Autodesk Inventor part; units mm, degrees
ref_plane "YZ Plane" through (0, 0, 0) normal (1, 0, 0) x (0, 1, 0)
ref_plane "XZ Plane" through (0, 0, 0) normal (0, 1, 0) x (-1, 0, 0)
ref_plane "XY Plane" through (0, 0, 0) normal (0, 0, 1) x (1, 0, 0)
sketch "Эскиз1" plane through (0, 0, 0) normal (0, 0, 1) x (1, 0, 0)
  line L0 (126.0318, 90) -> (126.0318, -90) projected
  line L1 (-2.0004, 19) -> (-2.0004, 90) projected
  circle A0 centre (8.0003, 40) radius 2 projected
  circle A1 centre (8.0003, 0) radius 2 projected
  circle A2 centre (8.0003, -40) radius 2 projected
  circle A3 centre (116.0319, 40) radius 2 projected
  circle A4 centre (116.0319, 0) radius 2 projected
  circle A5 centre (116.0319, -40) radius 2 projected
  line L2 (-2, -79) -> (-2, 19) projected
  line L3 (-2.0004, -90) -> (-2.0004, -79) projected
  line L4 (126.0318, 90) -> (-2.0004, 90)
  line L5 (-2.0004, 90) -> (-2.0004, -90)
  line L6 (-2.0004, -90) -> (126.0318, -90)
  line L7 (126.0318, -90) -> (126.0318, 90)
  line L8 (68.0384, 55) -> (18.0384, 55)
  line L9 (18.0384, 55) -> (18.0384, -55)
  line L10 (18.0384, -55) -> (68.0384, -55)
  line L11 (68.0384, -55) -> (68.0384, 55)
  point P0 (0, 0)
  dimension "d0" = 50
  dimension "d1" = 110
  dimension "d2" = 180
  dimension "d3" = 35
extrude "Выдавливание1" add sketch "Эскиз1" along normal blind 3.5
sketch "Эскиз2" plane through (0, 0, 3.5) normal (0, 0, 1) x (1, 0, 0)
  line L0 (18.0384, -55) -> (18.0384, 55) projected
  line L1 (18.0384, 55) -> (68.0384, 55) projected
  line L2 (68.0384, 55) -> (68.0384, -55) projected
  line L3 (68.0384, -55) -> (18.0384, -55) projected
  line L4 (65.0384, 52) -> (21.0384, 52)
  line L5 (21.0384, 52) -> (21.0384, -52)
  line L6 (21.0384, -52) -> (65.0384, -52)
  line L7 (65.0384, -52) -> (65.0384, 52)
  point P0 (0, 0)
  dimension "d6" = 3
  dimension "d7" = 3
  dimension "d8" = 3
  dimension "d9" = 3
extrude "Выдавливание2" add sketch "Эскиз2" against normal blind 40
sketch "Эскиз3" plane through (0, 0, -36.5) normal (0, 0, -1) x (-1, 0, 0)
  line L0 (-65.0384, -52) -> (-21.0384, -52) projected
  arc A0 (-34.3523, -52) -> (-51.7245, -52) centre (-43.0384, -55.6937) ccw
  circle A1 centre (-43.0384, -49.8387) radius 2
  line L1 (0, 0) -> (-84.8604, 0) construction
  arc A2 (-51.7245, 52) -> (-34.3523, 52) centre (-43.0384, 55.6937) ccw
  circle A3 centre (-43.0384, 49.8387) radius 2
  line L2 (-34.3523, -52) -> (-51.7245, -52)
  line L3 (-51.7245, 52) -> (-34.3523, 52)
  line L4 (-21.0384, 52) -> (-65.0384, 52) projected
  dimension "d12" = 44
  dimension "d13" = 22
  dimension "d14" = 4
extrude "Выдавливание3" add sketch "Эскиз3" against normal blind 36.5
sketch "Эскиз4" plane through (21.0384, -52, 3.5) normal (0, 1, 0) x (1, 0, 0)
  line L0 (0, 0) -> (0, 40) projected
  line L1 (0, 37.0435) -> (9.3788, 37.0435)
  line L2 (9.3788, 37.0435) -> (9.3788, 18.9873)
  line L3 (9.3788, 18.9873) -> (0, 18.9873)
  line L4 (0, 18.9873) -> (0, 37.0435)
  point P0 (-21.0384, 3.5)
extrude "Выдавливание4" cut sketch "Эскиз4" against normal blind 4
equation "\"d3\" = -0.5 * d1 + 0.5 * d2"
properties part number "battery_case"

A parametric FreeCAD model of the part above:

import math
import FreeCAD as App
import Part
import Sketcher

doc = App.newDocument("Part")
body = doc.addObject("PartDesign::Body", "Body")

# Sketch on XY plane
sketch1 = body.newObject("Sketcher::SketchObject", "Sketch")
sketch1.AttachmentSupport = (doc.getObject("XY_Plane"), [""])
sketch1.MapMode = "FlatFace"
sketch1.addGeometry([
    Part.LineSegment(App.Vector(126, -90, 0), App.Vector(126, 90, 0)),  # 0
    Part.LineSegment(App.Vector(126, 90, 0), App.Vector(-2, 90, 0)),  # 1
    Part.LineSegment(App.Vector(-2, 90, 0), App.Vector(-2, 19, 0)),  # 2
    Part.LineSegment(App.Vector(-2, 19, 0), App.Vector(-2, -79, 0)),  # 3
    Part.LineSegment(App.Vector(-2, -79, 0), App.Vector(-2, -90, 0)),  # 4
    Part.LineSegment(App.Vector(-2, -90, 0), App.Vector(126, -90, 0)),  # 5
    Part.Circle(App.Vector(8, -40, 0), App.Vector(0, 0, 1), 2),  # 6
    Part.Circle(App.Vector(116, -40, 0), App.Vector(0, 0, 1), 2),  # 7
    Part.Circle(App.Vector(8, 0, 0), App.Vector(0, 0, 1), 2),  # 8
    Part.Circle(App.Vector(8, 40, 0), App.Vector(0, 0, 1), 2),  # 9
    Part.LineSegment(App.Vector(18, 55, 0), App.Vector(68, 55, 0)),  # 10
    Part.LineSegment(App.Vector(68, 55, 0), App.Vector(68, -55, 0)),  # 11
    Part.LineSegment(App.Vector(68, -55, 0), App.Vector(18, -55, 0)),  # 12
    Part.LineSegment(App.Vector(18, -55, 0), App.Vector(18, 55, 0)),  # 13
    Part.Circle(App.Vector(116, 0, 0), App.Vector(0, 0, 1), 2),  # 14
    Part.Circle(App.Vector(116, 40, 0), App.Vector(0, 0, 1), 2),  # 15
], False)
sketch1.addConstraint([
    Sketcher.Constraint("Coincident", 0, 2, 1, 1),
    Sketcher.Constraint("Coincident", 1, 2, 2, 1),
    Sketcher.Constraint("Coincident", 2, 2, 3, 1),
    Sketcher.Constraint("Coincident", 3, 2, 4, 1),
    Sketcher.Constraint("Coincident", 4, 2, 5, 1),
    Sketcher.Constraint("Coincident", 5, 2, 0, 1),
    Sketcher.Constraint("Coincident", 10, 2, 11, 1),
    Sketcher.Constraint("Coincident", 11, 2, 12, 1),
    Sketcher.Constraint("Coincident", 12, 2, 13, 1),
    Sketcher.Constraint("Coincident", 13, 2, 10, 1),
    Sketcher.Constraint("Vertical", 0),
    Sketcher.Constraint("Horizontal", 1),
    Sketcher.Constraint("Vertical", 2),
    Sketcher.Constraint("Horizontal", 5),
    Sketcher.Constraint("Horizontal", 10),
    Sketcher.Constraint("Vertical", 11),
    Sketcher.Constraint("Horizontal", 12),
    Sketcher.Constraint("Vertical", 13),
    Sketcher.Constraint("Equal", 6, 7),
    Sketcher.Constraint("Equal", 7, 8),
    Sketcher.Constraint("Equal", 8, 9),
    Sketcher.Constraint("Equal", 9, 14),
    Sketcher.Constraint("Equal", 14, 15),
    Sketcher.Constraint("Symmetric", 6, 3, 9, 3, -1),
    Sketcher.Constraint("Symmetric", 7, 3, 15, 3, -1),
    Sketcher.Constraint("Symmetric", 1, 2, 4, 2, -1),
    Sketcher.Constraint("PointOnObject", 8, 3, -1),
    Sketcher.Constraint("PointOnObject", 14, 3, -1),
    Sketcher.Constraint("Parallel", 3, 4),
    Sketcher.Constraint("Horizontal", 6, 3, 7, 3),
    Sketcher.Constraint("Vertical", 6, 3, 8, 3),
    Sketcher.Constraint("Vertical", 7, 3, 14, 3),
    Sketcher.Constraint("DistanceX", 10, 1, 10, 2, 50.0),
    Sketcher.Constraint("DistanceY", 0, 1, 0, 2, 180.0),
    Sketcher.Constraint("DistanceY", 11, 2, 11, 1, 110.0),
    Sketcher.Constraint("Diameter", 6, 4.0),
    Sketcher.Constraint("DistanceY", 15, 3, 0, 2, 50.0),
    Sketcher.Constraint("DistanceY", 10, 2, 0, 2, 35.0),
    Sketcher.Constraint("DistanceY", 2, 2, 2, 1, 71.0),
    Sketcher.Constraint("Distance", 3, 98.0),
    Sketcher.Constraint("DistanceX", 3, 2, -1, 1, 2.0),
    Sketcher.Constraint("DistanceX", 15, 3, 0, 2, 10.0),
    Sketcher.Constraint("DistanceX", 1, 2, 1, 1, 128.0322),
    Sketcher.Constraint("DistanceX", 9, 3, 10, 2, 60.038),
    Sketcher.Constraint("DistanceX", -1, 1, 6, 3, 8.0003),
])
pad1 = body.newObject("PartDesign::Pad", "Pad")
pad1.Profile = sketch1
pad1.Length = 3.5

# Sketch on XY plane
sketch2 = body.newObject("Sketcher::SketchObject", "Sketch001")
sketch2.AttachmentSupport = (doc.getObject("XY_Plane"), [""])
sketch2.MapMode = "FlatFace"
sketch2.AttachmentOffset = App.Placement(App.Vector(0, 0, 3.5), App.Rotation())
sketch2.addGeometry([
    Part.LineSegment(App.Vector(18, 55, 0), App.Vector(18, -55, 0)),  # 0
    Part.LineSegment(App.Vector(18, -55, 0), App.Vector(68, -55, 0)),  # 1
    Part.LineSegment(App.Vector(68, -55, 0), App.Vector(68, 55, 0)),  # 2
    Part.LineSegment(App.Vector(68, 55, 0), App.Vector(18, 55, 0)),  # 3
    Part.LineSegment(App.Vector(21, 52, 0), App.Vector(65, 52, 0)),  # 4
    Part.LineSegment(App.Vector(65, 52, 0), App.Vector(65, -52, 0)),  # 5
    Part.LineSegment(App.Vector(65, -52, 0), App.Vector(21, -52, 0)),  # 6
    Part.LineSegment(App.Vector(21, -52, 0), App.Vector(21, 52, 0)),  # 7
], False)
sketch2.addConstraint([
    Sketcher.Constraint("Coincident", 0, 2, 1, 1),
    Sketcher.Constraint("Coincident", 1, 2, 2, 1),
    Sketcher.Constraint("Coincident", 2, 2, 3, 1),
    Sketcher.Constraint("Coincident", 3, 2, 0, 1),
    Sketcher.Constraint("Coincident", 4, 2, 5, 1),
    Sketcher.Constraint("Coincident", 5, 2, 6, 1),
    Sketcher.Constraint("Coincident", 6, 2, 7, 1),
    Sketcher.Constraint("Coincident", 7, 2, 4, 1),
    Sketcher.Constraint("Vertical", 0),
    Sketcher.Constraint("Horizontal", 1),
    Sketcher.Constraint("Vertical", 2),
    Sketcher.Constraint("Horizontal", 3),
    Sketcher.Constraint("Horizontal", 4),
    Sketcher.Constraint("Vertical", 5),
    Sketcher.Constraint("Horizontal", 6),
    Sketcher.Constraint("Vertical", 7),
    Sketcher.Constraint("DistanceX", 4, 2, 2, 2, 3.0),
    Sketcher.Constraint("DistanceY", 4, 2, 2, 2, 3.0),
    Sketcher.Constraint("DistanceY", 1, 2, 5, 2, 3.0),
    Sketcher.Constraint("DistanceX", 0, 2, 6, 2, 3.0),
    Sketcher.Constraint("DistanceX", 1, 1, 1, 2, 50.0),
    Sketcher.Constraint("DistanceY", 0, 2, 0, 1, 110.0),
    Sketcher.Constraint("DistanceY", 0, 2, -1, 1, 55.0),
    Sketcher.Constraint("DistanceX", -1, 1, 0, 2, 18.0384),
])
pad2 = body.newObject("PartDesign::Pad", "Pad001")
pad2.Profile = sketch2
pad2.Length = 40
pad2.Reversed = True

# Sketch on XY plane
sketch3 = body.newObject("Sketcher::SketchObject", "Sketch002")
sketch3.AttachmentSupport = (doc.getObject("XY_Plane"), [""])
sketch3.MapMode = "FlatFace"
sketch3.AttachmentOffset = App.Placement(App.Vector(0, 0, -36.5), App.Rotation())
sketch3.addGeometry([
    Part.ArcOfCircle(Part.Circle(App.Vector(43, -55.7, 0), App.Vector(0, 0, 1), 9.4), math.radians(23), math.radians(157)),  # 0
    Part.LineSegment(App.Vector(51.7, -52, 0), App.Vector(34.4, -52, 0)),  # 1
    Part.Circle(App.Vector(43, -49.8, 0), App.Vector(0, 0, 1), 2),  # 2
    Part.LineSegment(App.Vector(34.4, 52, 0), App.Vector(51.7, 52, 0)),  # 3
    Part.ArcOfCircle(Part.Circle(App.Vector(43, 55.7, 0), App.Vector(0, 0, 1), 9.4), math.radians(-157), math.radians(-23)),  # 4
    Part.Circle(App.Vector(43, 49.8, 0), App.Vector(0, 0, 1), 2),  # 5
], False)
sketch3.addConstraint([
    Sketcher.Constraint("Coincident", 0, 1, 1, 1),
    Sketcher.Constraint("Coincident", 1, 2, 0, 2),
    Sketcher.Constraint("Coincident", 3, 1, 4, 1),
    Sketcher.Constraint("Coincident", 4, 2, 3, 2),
    Sketcher.Constraint("Horizontal", 1),
    Sketcher.Constraint("Horizontal", 3),
    Sketcher.Constraint("Equal", 0, 4),
    Sketcher.Constraint("Equal", 2, 5),
    Sketcher.Constraint("Symmetric", 0, 3, 4, 3, -1),
    Sketcher.Constraint("Symmetric", 2, 3, 5, 3, -1),
    Sketcher.Constraint("Vertical", 0, 3, 2, 3),
    Sketcher.Constraint("Vertical", 1, 2, 3, 1),
    Sketcher.Constraint("Diameter", 2, 4.0),
    Sketcher.Constraint("DistanceY", 0, 1, -1, 1, 52.0),
    Sketcher.Constraint("Radius", 0, 9.4388),
    Sketcher.Constraint("DistanceX", 1, 2, 1, 1, 17.3722),
    Sketcher.Constraint("DistanceY", 0, 3, 2, 3, 5.855),
    Sketcher.Constraint("DistanceX", -1, 1, 0, 3, 43.0384),
])
pad3 = body.newObject("PartDesign::Pad", "Pad002")
pad3.Profile = sketch3
pad3.Length = 36.5

# Sketch on XZ plane
sketch4 = body.newObject("Sketcher::SketchObject", "Sketch003")
sketch4.AttachmentSupport = (doc.getObject("XZ_Plane"), [""])
sketch4.MapMode = "FlatFace"
sketch4.AttachmentOffset = App.Placement(App.Vector(0, 0, 52), App.Rotation())
sketch4.addGeometry([
    Part.LineSegment(App.Vector(21, -34, 0), App.Vector(21, -15, 0)),
    Part.LineSegment(App.Vector(21, -15, 0), App.Vector(30, -15, 0)),
    Part.LineSegment(App.Vector(30, -15, 0), App.Vector(30, -34, 0)),
    Part.LineSegment(App.Vector(30, -34, 0), App.Vector(21, -34, 0)),
], False)
sketch4.addConstraint([
    Sketcher.Constraint("Coincident", 0, 2, 1, 1),
    Sketcher.Constraint("Coincident", 1, 2, 2, 1),
    Sketcher.Constraint("Coincident", 2, 2, 3, 1),
    Sketcher.Constraint("Coincident", 3, 2, 0, 1),
    Sketcher.Constraint("Vertical", 0),
    Sketcher.Constraint("Horizontal", 1),
    Sketcher.Constraint("Vertical", 2),
    Sketcher.Constraint("Horizontal", 3),
    Sketcher.Constraint("DistanceX", 1, 1, 1, 2, 9.3788),
    Sketcher.Constraint("DistanceY", 0, 1, 0, 2, 18.0562),
    Sketcher.Constraint("DistanceX", -1, 1, 0, 2, 21.0384),
    Sketcher.Constraint("DistanceY", 0, 2, -1, 1, 15.4873),
])
pocket1 = body.newObject("PartDesign::Pocket", "Pocket")
pocket1.Profile = sketch4
pocket1.Length = 4
pocket1.Reversed = True

doc.recompute()
